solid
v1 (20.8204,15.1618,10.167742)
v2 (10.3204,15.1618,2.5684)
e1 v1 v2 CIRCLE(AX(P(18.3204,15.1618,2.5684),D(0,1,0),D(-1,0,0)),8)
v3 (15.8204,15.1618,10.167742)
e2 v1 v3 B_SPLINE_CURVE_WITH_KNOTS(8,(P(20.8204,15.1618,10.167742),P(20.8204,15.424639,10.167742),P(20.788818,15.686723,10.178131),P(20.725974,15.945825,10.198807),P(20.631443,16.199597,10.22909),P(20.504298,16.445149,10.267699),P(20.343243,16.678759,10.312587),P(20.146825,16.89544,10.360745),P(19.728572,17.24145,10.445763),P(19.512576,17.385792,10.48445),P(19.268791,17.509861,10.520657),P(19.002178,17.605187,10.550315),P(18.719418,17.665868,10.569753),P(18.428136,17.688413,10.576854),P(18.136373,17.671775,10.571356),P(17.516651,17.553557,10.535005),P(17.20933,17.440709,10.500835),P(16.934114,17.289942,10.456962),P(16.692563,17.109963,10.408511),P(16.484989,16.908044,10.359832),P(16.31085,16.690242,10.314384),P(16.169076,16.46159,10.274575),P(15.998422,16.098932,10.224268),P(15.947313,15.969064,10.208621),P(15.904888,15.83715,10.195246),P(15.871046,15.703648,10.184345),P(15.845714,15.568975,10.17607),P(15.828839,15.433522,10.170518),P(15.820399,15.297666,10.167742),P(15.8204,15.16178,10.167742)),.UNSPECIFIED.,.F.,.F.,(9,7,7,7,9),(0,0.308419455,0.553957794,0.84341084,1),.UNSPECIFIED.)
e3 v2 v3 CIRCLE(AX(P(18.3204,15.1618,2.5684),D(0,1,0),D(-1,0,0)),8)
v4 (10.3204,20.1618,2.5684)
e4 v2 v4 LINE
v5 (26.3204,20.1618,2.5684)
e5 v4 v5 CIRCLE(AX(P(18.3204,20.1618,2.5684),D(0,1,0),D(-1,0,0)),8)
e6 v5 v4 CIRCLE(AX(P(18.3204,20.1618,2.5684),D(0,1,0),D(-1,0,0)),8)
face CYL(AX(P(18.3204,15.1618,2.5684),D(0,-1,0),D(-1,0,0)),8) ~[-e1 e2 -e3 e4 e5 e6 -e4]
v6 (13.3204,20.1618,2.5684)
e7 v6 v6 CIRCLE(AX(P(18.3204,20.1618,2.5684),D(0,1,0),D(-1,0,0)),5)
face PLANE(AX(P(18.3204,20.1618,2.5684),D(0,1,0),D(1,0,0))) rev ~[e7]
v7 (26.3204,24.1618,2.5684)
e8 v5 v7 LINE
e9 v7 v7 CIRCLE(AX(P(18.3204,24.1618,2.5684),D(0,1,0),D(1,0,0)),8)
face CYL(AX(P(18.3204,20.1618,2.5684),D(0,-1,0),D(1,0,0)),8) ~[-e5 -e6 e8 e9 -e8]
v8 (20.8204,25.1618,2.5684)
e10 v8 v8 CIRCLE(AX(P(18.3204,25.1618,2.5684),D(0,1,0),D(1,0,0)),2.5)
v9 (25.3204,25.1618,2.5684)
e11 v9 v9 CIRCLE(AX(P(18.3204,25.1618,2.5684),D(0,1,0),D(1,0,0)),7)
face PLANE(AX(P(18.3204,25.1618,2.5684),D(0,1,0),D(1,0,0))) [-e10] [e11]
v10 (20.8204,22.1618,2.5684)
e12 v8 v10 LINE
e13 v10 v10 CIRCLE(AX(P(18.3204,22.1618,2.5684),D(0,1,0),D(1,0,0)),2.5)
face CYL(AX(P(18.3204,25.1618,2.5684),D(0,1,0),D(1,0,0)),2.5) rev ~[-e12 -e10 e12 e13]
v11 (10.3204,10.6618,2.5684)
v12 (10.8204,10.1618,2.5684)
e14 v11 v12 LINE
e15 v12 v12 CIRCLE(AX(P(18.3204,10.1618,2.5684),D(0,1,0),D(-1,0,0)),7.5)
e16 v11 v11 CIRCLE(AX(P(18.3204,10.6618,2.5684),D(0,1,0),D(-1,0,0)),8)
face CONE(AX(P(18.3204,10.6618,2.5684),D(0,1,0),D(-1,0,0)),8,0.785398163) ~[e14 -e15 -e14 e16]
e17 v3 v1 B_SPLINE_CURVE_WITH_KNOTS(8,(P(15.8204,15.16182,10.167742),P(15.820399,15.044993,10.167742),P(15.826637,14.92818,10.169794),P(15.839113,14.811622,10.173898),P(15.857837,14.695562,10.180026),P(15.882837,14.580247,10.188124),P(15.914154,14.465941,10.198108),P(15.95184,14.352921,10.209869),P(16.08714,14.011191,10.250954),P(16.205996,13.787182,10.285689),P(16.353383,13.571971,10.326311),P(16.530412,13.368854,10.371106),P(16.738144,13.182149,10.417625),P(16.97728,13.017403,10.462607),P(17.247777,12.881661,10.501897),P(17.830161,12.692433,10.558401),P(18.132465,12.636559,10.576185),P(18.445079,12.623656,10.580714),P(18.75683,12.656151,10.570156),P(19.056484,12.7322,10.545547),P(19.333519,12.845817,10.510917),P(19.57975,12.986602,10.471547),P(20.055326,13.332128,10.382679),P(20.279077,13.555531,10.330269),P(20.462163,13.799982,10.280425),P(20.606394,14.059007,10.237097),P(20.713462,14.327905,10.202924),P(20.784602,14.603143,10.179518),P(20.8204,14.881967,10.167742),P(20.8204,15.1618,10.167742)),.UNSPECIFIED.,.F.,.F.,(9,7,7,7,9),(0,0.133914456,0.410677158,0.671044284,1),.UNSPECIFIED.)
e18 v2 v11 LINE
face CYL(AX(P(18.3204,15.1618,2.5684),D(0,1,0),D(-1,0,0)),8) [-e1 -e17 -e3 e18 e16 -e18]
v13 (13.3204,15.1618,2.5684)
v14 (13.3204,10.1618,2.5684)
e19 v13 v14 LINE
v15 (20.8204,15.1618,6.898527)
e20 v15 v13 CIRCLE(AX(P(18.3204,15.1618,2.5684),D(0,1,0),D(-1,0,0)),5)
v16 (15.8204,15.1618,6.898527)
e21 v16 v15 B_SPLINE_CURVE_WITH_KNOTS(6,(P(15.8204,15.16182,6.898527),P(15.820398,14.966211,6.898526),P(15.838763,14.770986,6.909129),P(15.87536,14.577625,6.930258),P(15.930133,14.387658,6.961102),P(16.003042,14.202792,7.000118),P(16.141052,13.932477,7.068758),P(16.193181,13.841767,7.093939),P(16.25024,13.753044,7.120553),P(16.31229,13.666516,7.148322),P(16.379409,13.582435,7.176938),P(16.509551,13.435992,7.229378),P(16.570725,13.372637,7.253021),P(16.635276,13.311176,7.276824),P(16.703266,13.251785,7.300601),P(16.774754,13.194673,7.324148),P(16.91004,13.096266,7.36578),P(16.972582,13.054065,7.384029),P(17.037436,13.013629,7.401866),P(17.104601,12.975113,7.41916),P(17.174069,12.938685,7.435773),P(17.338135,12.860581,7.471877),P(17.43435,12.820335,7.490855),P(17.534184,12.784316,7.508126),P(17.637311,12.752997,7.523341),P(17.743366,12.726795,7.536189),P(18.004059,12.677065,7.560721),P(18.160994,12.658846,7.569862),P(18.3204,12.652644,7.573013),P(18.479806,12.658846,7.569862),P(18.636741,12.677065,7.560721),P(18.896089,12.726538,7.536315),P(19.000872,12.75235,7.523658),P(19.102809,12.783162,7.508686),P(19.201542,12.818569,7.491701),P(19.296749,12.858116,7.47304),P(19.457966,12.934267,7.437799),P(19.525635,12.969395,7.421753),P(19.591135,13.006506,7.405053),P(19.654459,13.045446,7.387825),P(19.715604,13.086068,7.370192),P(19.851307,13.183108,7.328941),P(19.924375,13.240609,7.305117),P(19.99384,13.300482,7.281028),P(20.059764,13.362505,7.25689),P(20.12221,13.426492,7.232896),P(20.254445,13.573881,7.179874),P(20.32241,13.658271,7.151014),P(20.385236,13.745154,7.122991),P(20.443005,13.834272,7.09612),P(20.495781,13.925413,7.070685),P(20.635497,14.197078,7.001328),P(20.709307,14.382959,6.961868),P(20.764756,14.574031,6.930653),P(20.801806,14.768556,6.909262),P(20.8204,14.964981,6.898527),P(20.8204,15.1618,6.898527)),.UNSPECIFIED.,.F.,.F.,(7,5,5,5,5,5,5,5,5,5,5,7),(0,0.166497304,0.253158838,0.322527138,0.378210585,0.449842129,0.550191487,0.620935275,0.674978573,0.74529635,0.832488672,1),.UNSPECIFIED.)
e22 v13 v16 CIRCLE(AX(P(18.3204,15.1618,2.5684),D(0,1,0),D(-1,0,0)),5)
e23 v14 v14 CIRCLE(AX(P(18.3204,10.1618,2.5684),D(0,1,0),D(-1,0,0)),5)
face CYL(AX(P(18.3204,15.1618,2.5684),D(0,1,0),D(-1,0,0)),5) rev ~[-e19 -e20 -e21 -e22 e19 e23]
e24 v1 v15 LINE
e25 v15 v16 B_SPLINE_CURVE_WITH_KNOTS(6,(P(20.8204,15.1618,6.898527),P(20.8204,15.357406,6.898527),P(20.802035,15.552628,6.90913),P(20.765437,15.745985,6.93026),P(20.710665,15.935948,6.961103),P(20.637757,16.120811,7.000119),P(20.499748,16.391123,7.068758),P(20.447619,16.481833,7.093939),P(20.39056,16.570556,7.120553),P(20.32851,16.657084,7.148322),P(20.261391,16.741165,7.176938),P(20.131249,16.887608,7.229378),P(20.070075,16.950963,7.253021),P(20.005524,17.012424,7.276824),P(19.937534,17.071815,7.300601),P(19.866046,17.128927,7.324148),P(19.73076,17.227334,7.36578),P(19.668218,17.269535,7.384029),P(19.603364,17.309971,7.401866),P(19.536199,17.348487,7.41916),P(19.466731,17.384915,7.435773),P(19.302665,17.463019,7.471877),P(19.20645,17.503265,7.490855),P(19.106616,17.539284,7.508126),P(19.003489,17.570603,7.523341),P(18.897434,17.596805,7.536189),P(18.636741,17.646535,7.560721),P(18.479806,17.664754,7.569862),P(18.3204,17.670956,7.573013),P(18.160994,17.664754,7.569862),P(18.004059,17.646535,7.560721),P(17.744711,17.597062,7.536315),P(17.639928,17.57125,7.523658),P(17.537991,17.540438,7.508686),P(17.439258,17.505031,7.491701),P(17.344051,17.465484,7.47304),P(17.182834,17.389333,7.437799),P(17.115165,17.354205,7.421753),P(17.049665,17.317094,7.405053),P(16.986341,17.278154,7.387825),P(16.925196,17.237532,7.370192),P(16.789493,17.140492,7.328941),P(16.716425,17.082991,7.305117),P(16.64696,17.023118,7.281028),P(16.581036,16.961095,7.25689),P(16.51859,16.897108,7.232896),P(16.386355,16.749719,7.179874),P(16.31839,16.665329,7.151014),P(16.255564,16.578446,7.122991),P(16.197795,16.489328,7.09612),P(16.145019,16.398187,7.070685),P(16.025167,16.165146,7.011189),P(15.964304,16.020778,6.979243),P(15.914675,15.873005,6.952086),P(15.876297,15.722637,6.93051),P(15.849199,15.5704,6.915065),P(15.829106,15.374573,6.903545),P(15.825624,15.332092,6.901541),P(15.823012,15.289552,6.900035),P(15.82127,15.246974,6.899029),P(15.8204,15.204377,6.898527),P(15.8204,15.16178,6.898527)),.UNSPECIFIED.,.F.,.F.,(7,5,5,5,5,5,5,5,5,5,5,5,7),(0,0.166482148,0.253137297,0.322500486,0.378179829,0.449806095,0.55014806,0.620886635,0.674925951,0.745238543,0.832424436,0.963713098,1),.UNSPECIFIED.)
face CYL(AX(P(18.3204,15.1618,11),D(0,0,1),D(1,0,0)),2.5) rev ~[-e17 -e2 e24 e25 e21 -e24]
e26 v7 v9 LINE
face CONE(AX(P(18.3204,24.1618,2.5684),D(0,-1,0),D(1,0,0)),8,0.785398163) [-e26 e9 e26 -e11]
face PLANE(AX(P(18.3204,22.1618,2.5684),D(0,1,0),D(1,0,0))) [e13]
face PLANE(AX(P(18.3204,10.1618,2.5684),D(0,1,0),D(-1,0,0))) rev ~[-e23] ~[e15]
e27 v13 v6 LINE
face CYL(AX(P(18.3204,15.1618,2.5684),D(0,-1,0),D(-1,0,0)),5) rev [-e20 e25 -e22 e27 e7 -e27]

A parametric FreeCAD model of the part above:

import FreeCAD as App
import Part
import Sketcher
from FreeCAD import Vector
Q = App.Units.Quantity


def edges_at(feature, points):
    """Names of the edges that pass closest to the given points."""
    edges = feature.Shape.Edges
    near = lambda p: min(range(len(edges)), key=lambda i: edges[i].distToShape(Part.Vertex(*p))[0])
    return sorted({f"Edge{near(p) + 1}" for p in points})

doc = App.newDocument("Part")
body = doc.addObject("PartDesign::Body", "Body")

# Sketch on XZ plane
sketch1 = doc.addObject("Sketcher::SketchObject", "Sketch")
body.addObject(sketch1)
sketch1.AttachmentSupport = (doc.XZ_Plane, [""])
sketch1.MapMode = "FlatFace"
sketch1.AttachmentOffset = App.Placement(Vector(0, 0, -15.1618), App.Rotation())
sketch1.addGeometry([
    Part.Circle(Vector(18, 3, 0), Vector(0, 0, 1), 8),
    Part.Circle(Vector(18, 3, 0), Vector(0, 0, 1), 5),
], False)
sketch1.addConstraint([
    Sketcher.Constraint("Coincident", 1, 3, 0, 3),
    Sketcher.Constraint("Diameter", 0, Q("16 mm")),
    Sketcher.Constraint("Diameter", 1, Q("10 mm")),
    Sketcher.Constraint("DistanceX", -1, 1, 0, 3, Q("18.3204 mm")),
    Sketcher.Constraint("DistanceY", -1, 1, 0, 3, Q("2.5684 mm")),
])
pad1 = doc.addObject("PartDesign::Pad", "Pad")
body.addObject(pad1)
pad1.Profile = sketch1
pad1.Type = "TwoLengths"
pad1.Length = 5
pad1.Length2 = 5
pad1.Reversed = True

# Sketch on XZ plane
sketch2 = doc.addObject("Sketcher::SketchObject", "Sketch001")
body.addObject(sketch2)
sketch2.AttachmentSupport = (doc.XZ_Plane, [""])
sketch2.MapMode = "FlatFace"
sketch2.AttachmentOffset = App.Placement(Vector(0, 0, -20.1618), App.Rotation())
sketch2.addGeometry(Part.Circle(Vector(18, 3, 0), Vector(0, 0, 1), 8), False)
sketch2.addConstraint([
    Sketcher.Constraint("Diameter", 0, Q("16 mm")),
    Sketcher.Constraint("DistanceX", -1, 1, 0, 3, Q("18.3204 mm")),
    Sketcher.Constraint("DistanceY", -1, 1, 0, 3, Q("2.5684 mm")),
])
pad2 = doc.addObject("PartDesign::Pad", "Pad001")
body.addObject(pad2)
pad2.Profile = sketch2
pad2.Length = 5
pad2.Reversed = True

# Sketch on XZ plane
sketch3 = doc.addObject("Sketcher::SketchObject", "Sketch002")
body.addObject(sketch3)
sketch3.AttachmentSupport = (doc.XZ_Plane, [""])
sketch3.MapMode = "FlatFace"
sketch3.AttachmentOffset = App.Placement(Vector(0, 0, -25.1618), App.Rotation())
sketch3.addGeometry(Part.Circle(Vector(18.3, 2.6, 0), Vector(0, 0, 1), 2.5), False)
sketch3.addConstraint([
    Sketcher.Constraint("Diameter", 0, Q("5 mm")),
    Sketcher.Constraint("DistanceX", -1, 1, 0, 3, Q("18.3204 mm")),
    Sketcher.Constraint("DistanceY", -1, 1, 0, 3, Q("2.5684 mm")),
])
pocket1 = doc.addObject("PartDesign::Pocket", "Pocket")
body.addObject(pocket1)
pocket1.Profile = sketch3
pocket1.Length = 3
pocket1.Reversed = True

# Sketch on XY plane
sketch4 = doc.addObject("Sketcher::SketchObject", "Sketch003")
body.addObject(sketch4)
sketch4.AttachmentSupport = (doc.XY_Plane, [""])
sketch4.MapMode = "FlatFace"
sketch4.AttachmentOffset = App.Placement(Vector(0, 0, 11), App.Rotation())
sketch4.addGeometry(Part.Circle(Vector(18.3, 15.2, 0), Vector(0, 0, 1), 2.5), False)
sketch4.addConstraint([
    Sketcher.Constraint("Diameter", 0, Q("5 mm")),
    Sketcher.Constraint("DistanceX", -1, 1, 0, 3, Q("18.3204 mm")),
    Sketcher.Constraint("DistanceY", -1, 1, 0, 3, Q("15.1618 mm")),
])
pocket2 = doc.addObject("PartDesign::Pocket", "Pocket001")
body.addObject(pocket2)
pocket2.Profile = sketch4
pocket2.Length = 6
doc.recompute()

chamfer = doc.addObject("PartDesign::Chamfer", "Chamfer")
body.addObject(chamfer)
chamfer.Base = (pocket2, edges_at(pocket2, [(26.32, 10.162, 2.568)]))
chamfer.Size = 0.5
doc.recompute()

chamfer2 = doc.addObject("PartDesign::Chamfer", "Chamfer001")
body.addObject(chamfer2)
chamfer2.Base = (chamfer, edges_at(chamfer, [(10.32, 25.162, 2.568)]))
chamfer2.Size = 1

doc.recompute()
